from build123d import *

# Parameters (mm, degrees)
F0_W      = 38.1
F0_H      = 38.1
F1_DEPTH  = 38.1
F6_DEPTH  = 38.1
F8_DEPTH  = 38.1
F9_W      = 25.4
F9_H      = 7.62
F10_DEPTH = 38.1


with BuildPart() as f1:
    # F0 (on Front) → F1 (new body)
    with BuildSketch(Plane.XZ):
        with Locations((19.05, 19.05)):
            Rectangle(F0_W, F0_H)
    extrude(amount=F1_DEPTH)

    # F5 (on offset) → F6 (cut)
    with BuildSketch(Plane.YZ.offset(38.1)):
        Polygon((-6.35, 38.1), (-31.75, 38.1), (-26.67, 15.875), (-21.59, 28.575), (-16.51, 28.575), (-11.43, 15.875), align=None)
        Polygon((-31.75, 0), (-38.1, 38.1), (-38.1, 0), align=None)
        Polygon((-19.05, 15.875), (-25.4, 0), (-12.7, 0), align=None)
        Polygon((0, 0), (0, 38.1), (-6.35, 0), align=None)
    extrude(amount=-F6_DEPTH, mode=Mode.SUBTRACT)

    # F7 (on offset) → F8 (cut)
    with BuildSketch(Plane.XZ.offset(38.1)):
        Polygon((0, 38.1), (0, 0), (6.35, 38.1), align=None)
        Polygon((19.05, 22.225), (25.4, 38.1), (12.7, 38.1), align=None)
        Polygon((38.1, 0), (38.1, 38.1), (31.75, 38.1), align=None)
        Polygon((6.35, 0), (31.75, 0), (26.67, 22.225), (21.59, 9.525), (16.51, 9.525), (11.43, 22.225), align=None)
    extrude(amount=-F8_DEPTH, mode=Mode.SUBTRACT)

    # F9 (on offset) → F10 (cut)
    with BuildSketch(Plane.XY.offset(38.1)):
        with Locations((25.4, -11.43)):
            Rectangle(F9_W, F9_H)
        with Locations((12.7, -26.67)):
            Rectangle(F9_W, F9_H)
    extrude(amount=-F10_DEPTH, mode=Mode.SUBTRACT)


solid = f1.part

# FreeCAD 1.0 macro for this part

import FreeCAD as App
import Part
import Sketcher
Q = App.Units.Quantity


def add_polygon(sketch, points):
    """Adds a closed chain of lines whose ends are joined by coincident constraints."""
    first, n = sketch.GeometryCount, len(points)
    for a, b in zip(points, points[1:] + points[:1]):
        sketch.addGeometry(Part.LineSegment(App.Vector(*a, 0), App.Vector(*b, 0)), False)
    for i in range(n):
        sketch.addConstraint(Sketcher.Constraint("Coincident", first + i, 2, first + (i + 1) % n, 1))

doc = App.newDocument("Part")
body = doc.addObject("PartDesign::Body", "Body")

sketch1 = body.newObject("Sketcher::SketchObject", "Sketch")
sketch1.AttachmentSupport = (doc.getObject("XZ_Plane"), [""])
sketch1.MapMode = "FlatFace"
add_polygon(sketch1, [(0, 38), (0, 0), (38, 0), (38, 38)])
sketch1.addConstraint(Sketcher.Constraint("Vertical", 0))
sketch1.addConstraint(Sketcher.Constraint("Horizontal", 1))
sketch1.addConstraint(Sketcher.Constraint("Vertical", 2))
sketch1.addConstraint(Sketcher.Constraint("Horizontal", 3))
sketch1.addConstraint(Sketcher.Constraint("Coincident", 0, 2, -1, 1))
sketch1.addConstraint(Sketcher.Constraint("Equal", 3, 0))
sketch1.addConstraint(Sketcher.Constraint("DistanceX", 1, 1, 1, 2, Q("1.5 in")))
pad1 = body.newObject("PartDesign::Pad", "Pad")
pad1.Profile = sketch1
pad1.Length = Q("1.5 in")

sketch2 = body.newObject("Sketcher::SketchObject", "Sketch001")
sketch2.AttachmentSupport = (doc.getObject("YZ_Plane"), [""])
sketch2.MapMode = "FlatFace"
sketch2.AttachmentOffset = App.Placement(App.Vector(0, 0, 1.5 * 25.4), App.Rotation())
add_polygon(sketch2, [(-6, 38), (-32, 38), (-27, 16), (-22, 29), (-17, 29), (-11, 16)])
add_polygon(sketch2, [(-32, 0), (-38, 38), (-38, 0)])
add_polygon(sketch2, [(-19, 16), (-25, 0), (-13, 0)])
add_polygon(sketch2, [(0, 0), (0, 38), (-6, 0)])
sketch2.addConstraint(Sketcher.Constraint("Horizontal", 0))
sketch2.addConstraint(Sketcher.Constraint("Horizontal", 3))
sketch2.addConstraint(Sketcher.Constraint("Vertical", 7))
sketch2.addConstraint(Sketcher.Constraint("Horizontal", 8))
sketch2.addConstraint(Sketcher.Constraint("Horizontal", 10))
sketch2.addConstraint(Sketcher.Constraint("Vertical", 12))
sketch2.addConstraint(Sketcher.Constraint("Horizontal", 14))
sketch2.addConstraint(Sketcher.Constraint("Coincident", 14, 2, -1, 1))
sketch2.addConstraint(Sketcher.Constraint("PointOnObject", 7, 2, -1))
sketch2.addConstraint(Sketcher.Constraint("PointOnObject", 9, 2, -1))
sketch2.addConstraint(Sketcher.Constraint("Parallel", 2, 9))
sketch2.addConstraint(Sketcher.Constraint("Parallel", 4, 11))
sketch2.addConstraint(Sketcher.Constraint("Horizontal", 1, 2, 4, 2))
sketch2.addConstraint(Sketcher.Constraint("Horizontal", 5, 2, 6, 2))
sketch2.addConstraint(Sketcher.Constraint("Horizontal", 4, 2, 11, 2))
sketch2.addConstraint(Sketcher.Constraint("Horizontal", 6, 2, 12, 2))
sketch2.addConstraint(Sketcher.Constraint("Vertical", 0, 2, 8, 2))
sketch2.addConstraint(Sketcher.Constraint("Vertical", 5, 2, 13, 2))
sketch2.addConstraint(Sketcher.Constraint("Equal", 8, 14))
sketch2.addConstraint(Sketcher.Constraint("Equal", 2, 4))
sketch2.addConstraint(Sketcher.Constraint("Equal", 1, 5))
sketch2.addConstraint(Sketcher.Constraint("DistanceX", 0, 2, 0, 1, Q("1 in")))
sketch2.addConstraint(Sketcher.Constraint("DistanceX", 3, 1, 3, 2, Q("0.2 in")))
sketch2.addConstraint(Sketcher.Constraint("DistanceX", 10, 1, 10, 2, Q("0.5 in")))
sketch2.addConstraint(Sketcher.Constraint("DistanceY", 7, 2, 7, 1, Q("1.5 in")))
sketch2.addConstraint(Sketcher.Constraint("DistanceX", 9, 2, -1, 1, Q("1 in")))
sketch2.addConstraint(Sketcher.Constraint("DistanceX", 7, 2, 10, 2, Q("1 in")))
sketch2.addConstraint(Sketcher.Constraint("DistanceX", 0, 2, 1, 2, Q("0.2 in")))
sketch2.addConstraint(Sketcher.Constraint("DistanceY", 1, 2, 2, 2, Q("0.5 in")))
pocket1 = body.newObject("PartDesign::Pocket", "Pocket")
pocket1.Profile = sketch2
pocket1.Length = Q("1.5 in")

sketch3 = body.newObject("Sketcher::SketchObject", "Sketch002")
sketch3.AttachmentSupport = (doc.getObject("XZ_Plane"), [""])
sketch3.MapMode = "FlatFace"
sketch3.AttachmentOffset = App.Placement(App.Vector(0, 0, 1.5 * 25.4), App.Rotation())
add_polygon(sketch3, [(0, 38), (0, 0), (6, 38)])
add_polygon(sketch3, [(19, 22), (25, 38), (13, 38)])
add_polygon(sketch3, [(38, 0), (38, 38), (32, 38)])
add_polygon(sketch3, [(6, 0), (32, 0), (27, 22), (22, 10), (17, 10), (11, 22)])
sketch3.addConstraint(Sketcher.Constraint("Vertical", 0))
sketch3.addConstraint(Sketcher.Constraint("Horizontal", 2))
sketch3.addConstraint(Sketcher.Constraint("Horizontal", 4))
sketch3.addConstraint(Sketcher.Constraint("Vertical", 6))
sketch3.addConstraint(Sketcher.Constraint("Horizontal", 7))
sketch3.addConstraint(Sketcher.Constraint("Horizontal", 9))
sketch3.addConstraint(Sketcher.Constraint("Horizontal", 12))
sketch3.addConstraint(Sketcher.Constraint("Coincident", 0, 2, -1, 1))
sketch3.addConstraint(Sketcher.Constraint("PointOnObject", 8, 2, -1))
sketch3.addConstraint(Sketcher.Constraint("PointOnObject", 9, 2, -1))
sketch3.addConstraint(Sketcher.Constraint("Parallel", 3, 11))
sketch3.addConstraint(Sketcher.Constraint("Parallel", 5, 13))
sketch3.addConstraint(Sketcher.Constraint("Horizontal", 2, 2, 3, 2))
sketch3.addConstraint(Sketcher.Constraint("Horizontal", 4, 2, 6, 2))
sketch3.addConstraint(Sketcher.Constraint("Horizontal", 5, 2, 10, 2))
sketch3.addConstraint(Sketcher.Constraint("Horizontal", 10, 2, 13, 2))
sketch3.addConstraint(Sketcher.Constraint("Vertical", 7, 2, 9, 2))
sketch3.addConstraint(Sketcher.Constraint("Vertical", 1, 2, 14, 2))
sketch3.addConstraint(Sketcher.Constraint("Equal", 2, 7))
sketch3.addConstraint(Sketcher.Constraint("Equal", 3, 5))
sketch3.addConstraint(Sketcher.Constraint("Equal", 10, 14))
sketch3.addConstraint(Sketcher.Constraint("DistanceX", 9, 1, 9, 2, Q("1 in")))
sketch3.addConstraint(Sketcher.Constraint("DistanceX", 4, 2, 4, 1, Q("0.5 in")))
sketch3.addConstraint(Sketcher.Constraint("DistanceX", 12, 2, 12, 1, Q("0.2 in")))
sketch3.addConstraint(Sketcher.Constraint("DistanceY", 0, 2, 0, 1, Q("1.5 in")))
sketch3.addConstraint(Sketcher.Constraint("DistanceX", -1, 1, 3, 2, Q("1 in")))
sketch3.addConstraint(Sketcher.Constraint("DistanceX", 4, 2, 6, 2, Q("1 in")))
sketch3.addConstraint(Sketcher.Constraint("DistanceX", 5, 2, 10, 2, Q("0.3 in")))
sketch3.addConstraint(Sketcher.Constraint("DistanceY", 11, 2, 5, 2, Q("0.5 in")))
pocket2 = body.newObject("PartDesign::Pocket", "Pocket001")
pocket2.Profile = sketch3
pocket2.Length = Q("1.5 in")

sketch4 = body.newObject("Sketcher::SketchObject", "Sketch003")
sketch4.AttachmentSupport = (doc.getObject("XY_Plane"), [""])
sketch4.MapMode = "FlatFace"
sketch4.AttachmentOffset = App.Placement(App.Vector(0, 0, 1.5 * 25.4), App.Rotation())
add_polygon(sketch4, [(13, -8), (13, -15), (38, -15), (38, -8)])
add_polygon(sketch4, [(0, -23), (0, -30), (25, -30), (25, -23)])
sketch4.addConstraint(Sketcher.Constraint("Vertical", 0))
sketch4.addConstraint(Sketcher.Constraint("Horizontal", 1))
sketch4.addConstraint(Sketcher.Constraint("Vertical", 2))
sketch4.addConstraint(Sketcher.Constraint("Horizontal", 3))
sketch4.addConstraint(Sketcher.Constraint("Vertical", 4))
sketch4.addConstraint(Sketcher.Constraint("Horizontal", 5))
sketch4.addConstraint(Sketcher.Constraint("Vertical", 6))
sketch4.addConstraint(Sketcher.Constraint("Horizontal", 7))
sketch4.addConstraint(Sketcher.Constraint("PointOnObject", 4, 2, -2))
sketch4.addConstraint(Sketcher.Constraint("Equal", 3, 5))
sketch4.addConstraint(Sketcher.Constraint("Equal", 2, 4))
sketch4.addConstraint(Sketcher.Constraint("DistanceX", 1, 1, 1, 2, Q("1 in")))
sketch4.addConstraint(Sketcher.Constraint("DistanceY", 0, 2, 0, 1, Q("0.3 in")))
sketch4.addConstraint(Sketcher.Constraint("DistanceX", -1, 1, 0, 2, Q("0.5 in")))
sketch4.addConstraint(Sketcher.Constraint("DistanceY", 0, 2, -1, 1, Q("0.6 in")))
sketch4.addConstraint(Sketcher.Constraint("DistanceY", 4, 2, -1, 1, Q("1.2 in")))
pocket3 = body.newObject("PartDesign::Pocket", "Pocket002")
pocket3.Profile = sketch4
pocket3.Length = Q("1.5 in")

doc.recompute()
